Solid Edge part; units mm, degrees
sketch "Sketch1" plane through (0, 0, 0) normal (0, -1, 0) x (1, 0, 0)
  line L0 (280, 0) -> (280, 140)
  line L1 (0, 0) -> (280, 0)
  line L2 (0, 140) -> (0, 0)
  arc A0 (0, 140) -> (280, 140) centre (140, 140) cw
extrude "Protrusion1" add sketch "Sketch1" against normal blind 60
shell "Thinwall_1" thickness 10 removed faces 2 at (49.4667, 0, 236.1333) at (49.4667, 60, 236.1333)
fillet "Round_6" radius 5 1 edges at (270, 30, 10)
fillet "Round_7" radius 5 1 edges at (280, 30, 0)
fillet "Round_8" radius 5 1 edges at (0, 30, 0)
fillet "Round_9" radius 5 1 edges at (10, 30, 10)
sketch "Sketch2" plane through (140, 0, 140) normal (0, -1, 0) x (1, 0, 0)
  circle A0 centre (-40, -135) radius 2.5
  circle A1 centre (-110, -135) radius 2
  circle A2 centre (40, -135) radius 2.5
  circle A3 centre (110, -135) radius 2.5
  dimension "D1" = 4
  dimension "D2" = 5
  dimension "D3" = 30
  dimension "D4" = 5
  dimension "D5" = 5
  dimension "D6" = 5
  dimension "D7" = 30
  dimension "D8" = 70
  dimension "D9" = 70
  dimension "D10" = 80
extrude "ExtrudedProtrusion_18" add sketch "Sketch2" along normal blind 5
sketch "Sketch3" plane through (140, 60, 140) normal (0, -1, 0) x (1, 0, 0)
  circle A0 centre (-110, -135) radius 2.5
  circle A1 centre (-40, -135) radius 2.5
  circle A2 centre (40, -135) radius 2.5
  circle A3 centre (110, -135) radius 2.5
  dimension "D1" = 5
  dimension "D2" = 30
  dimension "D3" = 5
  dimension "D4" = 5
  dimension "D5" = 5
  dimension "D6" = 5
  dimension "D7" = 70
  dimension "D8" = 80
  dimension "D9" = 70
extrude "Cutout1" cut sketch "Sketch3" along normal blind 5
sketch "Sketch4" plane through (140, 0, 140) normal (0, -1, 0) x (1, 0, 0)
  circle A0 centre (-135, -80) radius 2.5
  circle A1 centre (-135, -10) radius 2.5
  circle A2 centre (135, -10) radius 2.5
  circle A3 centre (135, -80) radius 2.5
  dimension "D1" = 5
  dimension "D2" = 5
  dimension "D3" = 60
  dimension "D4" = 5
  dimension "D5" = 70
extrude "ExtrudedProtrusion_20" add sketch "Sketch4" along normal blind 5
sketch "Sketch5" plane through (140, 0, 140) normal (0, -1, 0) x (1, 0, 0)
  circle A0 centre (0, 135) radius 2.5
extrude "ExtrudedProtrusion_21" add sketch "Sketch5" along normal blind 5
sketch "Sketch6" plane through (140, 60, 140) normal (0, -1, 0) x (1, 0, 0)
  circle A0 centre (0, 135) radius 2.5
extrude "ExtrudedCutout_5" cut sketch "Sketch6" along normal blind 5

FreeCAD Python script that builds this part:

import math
import FreeCAD as App
import Part
import Sketcher
from FreeCAD import Vector
Q = App.Units.Quantity


def edges_at(feature, points):
    """Names of the edges that pass closest to the given points."""
    edges = feature.Shape.Edges
    near = lambda p: min(range(len(edges)), key=lambda i: edges[i].distToShape(Part.Vertex(*p))[0])
    return sorted({f"Edge{near(p) + 1}" for p in points})


def faces_at(feature, points):
    """Names of the faces that lie closest to the given points."""
    faces = feature.Shape.Faces
    near = lambda p: min(range(len(faces)), key=lambda i: faces[i].distToShape(Part.Vertex(*p))[0])
    return sorted({f"Face{near(p) + 1}" for p in points})

doc = App.newDocument("Part")
body = doc.addObject("PartDesign::Body", "Body")

# Sketch on XZ plane
sketch1 = doc.addObject("Sketcher::SketchObject", "Sketch")
body.addObject(sketch1)
sketch1.AttachmentSupport = (doc.XZ_Plane, [""])
sketch1.MapMode = "FlatFace"
sketch1.addGeometry(Part.LineSegment(Vector(0, 0, 0), Vector(280, 0, 0)), False)
sketch1.addGeometry(Part.LineSegment(Vector(280, 0, 0), Vector(280, 140, 0)), False)
sketch1.addGeometry(Part.ArcOfCircle(Part.Circle(Vector(140, 140, 0), Vector(0, 0, 1), 140), math.radians(0), math.radians(180)), False)
sketch1.addGeometry(Part.LineSegment(Vector(0, 140, 0), Vector(0, 0, 0)), False)
sketch1.addConstraint(Sketcher.Constraint("Coincident", 0, 2, 1, 1))
sketch1.addConstraint(Sketcher.Constraint("Tangent", 1, 2, 2, 1))
sketch1.addConstraint(Sketcher.Constraint("Tangent", 2, 2, 3, 1))
sketch1.addConstraint(Sketcher.Constraint("Coincident", 3, 2, 0, 1))
sketch1.addConstraint(Sketcher.Constraint("Horizontal", 0))
sketch1.addConstraint(Sketcher.Constraint("Vertical", 1))
sketch1.addConstraint(Sketcher.Constraint("Vertical", 3))
sketch1.addConstraint(Sketcher.Constraint("Coincident", 3, 2, -1, 1))
sketch1.addConstraint(Sketcher.Constraint("Radius", 2, Q("140 mm")))
sketch1.addConstraint(Sketcher.Constraint("DistanceY", 1, 1, 1, 2, Q("140 mm")))
pad1 = doc.addObject("PartDesign::Pad", "Pad")
body.addObject(pad1)
pad1.Profile = sketch1
pad1.Length = 60
pad1.Reversed = True
doc.recompute()

thickness = doc.addObject("PartDesign::Thickness", "Thickness")
body.addObject(thickness)
thickness.Base = (pad1, faces_at(pad1, [(49.467, 0, 236.133), (49.467, 60, 236.133)]))
thickness.Value = 10
thickness.Reversed = True
thickness.Join = "Intersection"
doc.recompute()

fillet = doc.addObject("PartDesign::Fillet", "Fillet")
body.addObject(fillet)
fillet.Base = (thickness, edges_at(thickness, [(270, 30, 10)]))
fillet.Radius = 5
doc.recompute()

fillet2 = doc.addObject("PartDesign::Fillet", "Fillet001")
body.addObject(fillet2)
fillet2.Base = (fillet, edges_at(fillet, [(280, 30, 0)]))
fillet2.Radius = 5
doc.recompute()

fillet3 = doc.addObject("PartDesign::Fillet", "Fillet002")
body.addObject(fillet3)
fillet3.Base = (fillet2, edges_at(fillet2, [(0, 30, 0)]))
fillet3.Radius = 5
doc.recompute()

fillet4 = doc.addObject("PartDesign::Fillet", "Fillet003")
body.addObject(fillet4)
fillet4.Base = (fillet3, edges_at(fillet3, [(10, 30, 10)]))
fillet4.Radius = 5

# Sketch on XZ plane
sketch2 = doc.addObject("Sketcher::SketchObject", "Sketch001")
body.addObject(sketch2)
sketch2.AttachmentSupport = (doc.XZ_Plane, [""])
sketch2.MapMode = "FlatFace"
sketch2.addGeometry(Part.Circle(Vector(100, 5, 0), Vector(0, 0, 1), 2.5), False)
sketch2.addGeometry(Part.Circle(Vector(30, 5, 0), Vector(0, 0, 1), 2), False)
sketch2.addGeometry(Part.Circle(Vector(180, 5, 0), Vector(0, 0, 1), 2.5), False)
sketch2.addGeometry(Part.Circle(Vector(250, 5, 0), Vector(0, 0, 1), 2.5), False)
sketch2.addConstraint(Sketcher.Constraint("Equal", 0, 2))
sketch2.addConstraint(Sketcher.Constraint("Equal", 2, 3))
sketch2.addConstraint(Sketcher.Constraint("Horizontal", 0, 3, 1, 3))
sketch2.addConstraint(Sketcher.Constraint("Horizontal", 1, 3, 2, 3))
sketch2.addConstraint(Sketcher.Constraint("Horizontal", 2, 3, 3, 3))
sketch2.addConstraint(Sketcher.Constraint("Diameter", 0, Q("5 mm")))
sketch2.addConstraint(Sketcher.Constraint("Diameter", 1, Q("4 mm")))
sketch2.addConstraint(Sketcher.Constraint("DistanceX", -1, 1, 0, 3, Q("100 mm")))
sketch2.addConstraint(Sketcher.Constraint("DistanceY", -1, 1, 0, 3, Q("5 mm")))
sketch2.addConstraint(Sketcher.Constraint("DistanceX", -1, 1, 1, 3, Q("30 mm")))
sketch2.addConstraint(Sketcher.Constraint("DistanceX", -1, 1, 2, 3, Q("180 mm")))
sketch2.addConstraint(Sketcher.Constraint("DistanceX", -1, 1, 3, 3, Q("250 mm")))
pad2 = doc.addObject("PartDesign::Pad", "Pad001")
body.addObject(pad2)
pad2.Profile = sketch2
pad2.Length = 5

# Sketch on XZ plane
sketch3 = doc.addObject("Sketcher::SketchObject", "Sketch002")
body.addObject(sketch3)
sketch3.AttachmentSupport = (doc.XZ_Plane, [""])
sketch3.MapMode = "FlatFace"
sketch3.AttachmentOffset = App.Placement(Vector(0, 0, -60), App.Rotation())
sketch3.addGeometry(Part.Circle(Vector(30, 5, 0), Vector(0, 0, 1), 2.5), False)
sketch3.addGeometry(Part.Circle(Vector(100, 5, 0), Vector(0, 0, 1), 2.5), False)
sketch3.addGeometry(Part.Circle(Vector(180, 5, 0), Vector(0, 0, 1), 2.5), False)
sketch3.addGeometry(Part.Circle(Vector(250, 5, 0), Vector(0, 0, 1), 2.5), False)
sketch3.addConstraint(Sketcher.Constraint("Equal", 0, 1))
sketch3.addConstraint(Sketcher.Constraint("Equal", 1, 2))
sketch3.addConstraint(Sketcher.Constraint("Equal", 2, 3))
sketch3.addConstraint(Sketcher.Constraint("Horizontal", 0, 3, 1, 3))
sketch3.addConstraint(Sketcher.Constraint("Horizontal", 1, 3, 2, 3))
sketch3.addConstraint(Sketcher.Constraint("Horizontal", 2, 3, 3, 3))
sketch3.addConstraint(Sketcher.Constraint("Diameter", 0, Q("5 mm")))
sketch3.addConstraint(Sketcher.Constraint("DistanceX", -1, 1, 0, 3, Q("30 mm")))
sketch3.addConstraint(Sketcher.Constraint("DistanceY", -1, 1, 0, 3, Q("5 mm")))
sketch3.addConstraint(Sketcher.Constraint("DistanceX", -1, 1, 1, 3, Q("100 mm")))
sketch3.addConstraint(Sketcher.Constraint("DistanceX", -1, 1, 2, 3, Q("180 mm")))
sketch3.addConstraint(Sketcher.Constraint("DistanceX", -1, 1, 3, 3, Q("250 mm")))
pocket1 = doc.addObject("PartDesign::Pocket", "Pocket")
body.addObject(pocket1)
pocket1.Profile = sketch3
pocket1.Length = 5
pocket1.Reversed = True

# Sketch on XZ plane
sketch4 = doc.addObject("Sketcher::SketchObject", "Sketch003")
body.addObject(sketch4)
sketch4.AttachmentSupport = (doc.XZ_Plane, [""])
sketch4.MapMode = "FlatFace"
sketch4.addGeometry(Part.Circle(Vector(5, 60, 0), Vector(0, 0, 1), 2.5), False)
sketch4.addGeometry(Part.Circle(Vector(5, 130, 0), Vector(0, 0, 1), 2.5), False)
sketch4.addGeometry(Part.Circle(Vector(275, 130, 0), Vector(0, 0, 1), 2.5), False)
sketch4.addGeometry(Part.Circle(Vector(275, 60, 0), Vector(0, 0, 1), 2.5), False)
sketch4.addConstraint(Sketcher.Constraint("Equal", 0, 1))
sketch4.addConstraint(Sketcher.Constraint("Equal", 1, 2))
sketch4.addConstraint(Sketcher.Constraint("Equal", 2, 3))
sketch4.addConstraint(Sketcher.Constraint("Horizontal", 1, 3, 2, 3))
sketch4.addConstraint(Sketcher.Constraint("Horizontal", 0, 3, 3, 3))
sketch4.addConstraint(Sketcher.Constraint("Vertical", 0, 3, 1, 3))
sketch4.addConstraint(Sketcher.Constraint("Vertical", 2, 3, 3, 3))
sketch4.addConstraint(Sketcher.Constraint("Diameter", 0, Q("5 mm")))
sketch4.addConstraint(Sketcher.Constraint("DistanceX", -1, 1, 0, 3, Q("5 mm")))
sketch4.addConstraint(Sketcher.Constraint("DistanceY", -1, 1, 0, 3, Q("60 mm")))
sketch4.addConstraint(Sketcher.Constraint("DistanceY", -1, 1, 1, 3, Q("130 mm")))
sketch4.addConstraint(Sketcher.Constraint("DistanceX", -1, 1, 2, 3, Q("275 mm")))
pad3 = doc.addObject("PartDesign::Pad", "Pad002")
body.addObject(pad3)
pad3.Profile = sketch4
pad3.Length = 5

# Sketch on XZ plane
sketch5 = doc.addObject("Sketcher::SketchObject", "Sketch004")
body.addObject(sketch5)
sketch5.AttachmentSupport = (doc.XZ_Plane, [""])
sketch5.MapMode = "FlatFace"
sketch5.addGeometry(Part.Circle(Vector(140, 275, 0), Vector(0, 0, 1), 2.5), False)
sketch5.addConstraint(Sketcher.Constraint("Diameter", 0, Q("5 mm")))
sketch5.addConstraint(Sketcher.Constraint("DistanceX", -1, 1, 0, 3, Q("140 mm")))
sketch5.addConstraint(Sketcher.Constraint("DistanceY", -1, 1, 0, 3, Q("275 mm")))
pad4 = doc.addObject("PartDesign::Pad", "Pad003")
body.addObject(pad4)
pad4.Profile = sketch5
pad4.Length = 5

# Sketch on XZ plane
sketch6 = doc.addObject("Sketcher::SketchObject", "Sketch005")
body.addObject(sketch6)
sketch6.AttachmentSupport = (doc.XZ_Plane, [""])
sketch6.MapMode = "FlatFace"
sketch6.AttachmentOffset = App.Placement(Vector(0, 0, -60), App.Rotation())
sketch6.addGeometry(Part.Circle(Vector(140, 275, 0), Vector(0, 0, 1), 2.5), False)
sketch6.addConstraint(Sketcher.Constraint("Diameter", 0, Q("5 mm")))
sketch6.addConstraint(Sketcher.Constraint("DistanceX", -1, 1, 0, 3, Q("140 mm")))
sketch6.addConstraint(Sketcher.Constraint("DistanceY", -1, 1, 0, 3, Q("275 mm")))
pocket2 = doc.addObject("PartDesign::Pocket", "Pocket001")
body.addObject(pocket2)
pocket2.Profile = sketch6
pocket2.Length = 5
pocket2.Reversed = True

doc.recompute()
